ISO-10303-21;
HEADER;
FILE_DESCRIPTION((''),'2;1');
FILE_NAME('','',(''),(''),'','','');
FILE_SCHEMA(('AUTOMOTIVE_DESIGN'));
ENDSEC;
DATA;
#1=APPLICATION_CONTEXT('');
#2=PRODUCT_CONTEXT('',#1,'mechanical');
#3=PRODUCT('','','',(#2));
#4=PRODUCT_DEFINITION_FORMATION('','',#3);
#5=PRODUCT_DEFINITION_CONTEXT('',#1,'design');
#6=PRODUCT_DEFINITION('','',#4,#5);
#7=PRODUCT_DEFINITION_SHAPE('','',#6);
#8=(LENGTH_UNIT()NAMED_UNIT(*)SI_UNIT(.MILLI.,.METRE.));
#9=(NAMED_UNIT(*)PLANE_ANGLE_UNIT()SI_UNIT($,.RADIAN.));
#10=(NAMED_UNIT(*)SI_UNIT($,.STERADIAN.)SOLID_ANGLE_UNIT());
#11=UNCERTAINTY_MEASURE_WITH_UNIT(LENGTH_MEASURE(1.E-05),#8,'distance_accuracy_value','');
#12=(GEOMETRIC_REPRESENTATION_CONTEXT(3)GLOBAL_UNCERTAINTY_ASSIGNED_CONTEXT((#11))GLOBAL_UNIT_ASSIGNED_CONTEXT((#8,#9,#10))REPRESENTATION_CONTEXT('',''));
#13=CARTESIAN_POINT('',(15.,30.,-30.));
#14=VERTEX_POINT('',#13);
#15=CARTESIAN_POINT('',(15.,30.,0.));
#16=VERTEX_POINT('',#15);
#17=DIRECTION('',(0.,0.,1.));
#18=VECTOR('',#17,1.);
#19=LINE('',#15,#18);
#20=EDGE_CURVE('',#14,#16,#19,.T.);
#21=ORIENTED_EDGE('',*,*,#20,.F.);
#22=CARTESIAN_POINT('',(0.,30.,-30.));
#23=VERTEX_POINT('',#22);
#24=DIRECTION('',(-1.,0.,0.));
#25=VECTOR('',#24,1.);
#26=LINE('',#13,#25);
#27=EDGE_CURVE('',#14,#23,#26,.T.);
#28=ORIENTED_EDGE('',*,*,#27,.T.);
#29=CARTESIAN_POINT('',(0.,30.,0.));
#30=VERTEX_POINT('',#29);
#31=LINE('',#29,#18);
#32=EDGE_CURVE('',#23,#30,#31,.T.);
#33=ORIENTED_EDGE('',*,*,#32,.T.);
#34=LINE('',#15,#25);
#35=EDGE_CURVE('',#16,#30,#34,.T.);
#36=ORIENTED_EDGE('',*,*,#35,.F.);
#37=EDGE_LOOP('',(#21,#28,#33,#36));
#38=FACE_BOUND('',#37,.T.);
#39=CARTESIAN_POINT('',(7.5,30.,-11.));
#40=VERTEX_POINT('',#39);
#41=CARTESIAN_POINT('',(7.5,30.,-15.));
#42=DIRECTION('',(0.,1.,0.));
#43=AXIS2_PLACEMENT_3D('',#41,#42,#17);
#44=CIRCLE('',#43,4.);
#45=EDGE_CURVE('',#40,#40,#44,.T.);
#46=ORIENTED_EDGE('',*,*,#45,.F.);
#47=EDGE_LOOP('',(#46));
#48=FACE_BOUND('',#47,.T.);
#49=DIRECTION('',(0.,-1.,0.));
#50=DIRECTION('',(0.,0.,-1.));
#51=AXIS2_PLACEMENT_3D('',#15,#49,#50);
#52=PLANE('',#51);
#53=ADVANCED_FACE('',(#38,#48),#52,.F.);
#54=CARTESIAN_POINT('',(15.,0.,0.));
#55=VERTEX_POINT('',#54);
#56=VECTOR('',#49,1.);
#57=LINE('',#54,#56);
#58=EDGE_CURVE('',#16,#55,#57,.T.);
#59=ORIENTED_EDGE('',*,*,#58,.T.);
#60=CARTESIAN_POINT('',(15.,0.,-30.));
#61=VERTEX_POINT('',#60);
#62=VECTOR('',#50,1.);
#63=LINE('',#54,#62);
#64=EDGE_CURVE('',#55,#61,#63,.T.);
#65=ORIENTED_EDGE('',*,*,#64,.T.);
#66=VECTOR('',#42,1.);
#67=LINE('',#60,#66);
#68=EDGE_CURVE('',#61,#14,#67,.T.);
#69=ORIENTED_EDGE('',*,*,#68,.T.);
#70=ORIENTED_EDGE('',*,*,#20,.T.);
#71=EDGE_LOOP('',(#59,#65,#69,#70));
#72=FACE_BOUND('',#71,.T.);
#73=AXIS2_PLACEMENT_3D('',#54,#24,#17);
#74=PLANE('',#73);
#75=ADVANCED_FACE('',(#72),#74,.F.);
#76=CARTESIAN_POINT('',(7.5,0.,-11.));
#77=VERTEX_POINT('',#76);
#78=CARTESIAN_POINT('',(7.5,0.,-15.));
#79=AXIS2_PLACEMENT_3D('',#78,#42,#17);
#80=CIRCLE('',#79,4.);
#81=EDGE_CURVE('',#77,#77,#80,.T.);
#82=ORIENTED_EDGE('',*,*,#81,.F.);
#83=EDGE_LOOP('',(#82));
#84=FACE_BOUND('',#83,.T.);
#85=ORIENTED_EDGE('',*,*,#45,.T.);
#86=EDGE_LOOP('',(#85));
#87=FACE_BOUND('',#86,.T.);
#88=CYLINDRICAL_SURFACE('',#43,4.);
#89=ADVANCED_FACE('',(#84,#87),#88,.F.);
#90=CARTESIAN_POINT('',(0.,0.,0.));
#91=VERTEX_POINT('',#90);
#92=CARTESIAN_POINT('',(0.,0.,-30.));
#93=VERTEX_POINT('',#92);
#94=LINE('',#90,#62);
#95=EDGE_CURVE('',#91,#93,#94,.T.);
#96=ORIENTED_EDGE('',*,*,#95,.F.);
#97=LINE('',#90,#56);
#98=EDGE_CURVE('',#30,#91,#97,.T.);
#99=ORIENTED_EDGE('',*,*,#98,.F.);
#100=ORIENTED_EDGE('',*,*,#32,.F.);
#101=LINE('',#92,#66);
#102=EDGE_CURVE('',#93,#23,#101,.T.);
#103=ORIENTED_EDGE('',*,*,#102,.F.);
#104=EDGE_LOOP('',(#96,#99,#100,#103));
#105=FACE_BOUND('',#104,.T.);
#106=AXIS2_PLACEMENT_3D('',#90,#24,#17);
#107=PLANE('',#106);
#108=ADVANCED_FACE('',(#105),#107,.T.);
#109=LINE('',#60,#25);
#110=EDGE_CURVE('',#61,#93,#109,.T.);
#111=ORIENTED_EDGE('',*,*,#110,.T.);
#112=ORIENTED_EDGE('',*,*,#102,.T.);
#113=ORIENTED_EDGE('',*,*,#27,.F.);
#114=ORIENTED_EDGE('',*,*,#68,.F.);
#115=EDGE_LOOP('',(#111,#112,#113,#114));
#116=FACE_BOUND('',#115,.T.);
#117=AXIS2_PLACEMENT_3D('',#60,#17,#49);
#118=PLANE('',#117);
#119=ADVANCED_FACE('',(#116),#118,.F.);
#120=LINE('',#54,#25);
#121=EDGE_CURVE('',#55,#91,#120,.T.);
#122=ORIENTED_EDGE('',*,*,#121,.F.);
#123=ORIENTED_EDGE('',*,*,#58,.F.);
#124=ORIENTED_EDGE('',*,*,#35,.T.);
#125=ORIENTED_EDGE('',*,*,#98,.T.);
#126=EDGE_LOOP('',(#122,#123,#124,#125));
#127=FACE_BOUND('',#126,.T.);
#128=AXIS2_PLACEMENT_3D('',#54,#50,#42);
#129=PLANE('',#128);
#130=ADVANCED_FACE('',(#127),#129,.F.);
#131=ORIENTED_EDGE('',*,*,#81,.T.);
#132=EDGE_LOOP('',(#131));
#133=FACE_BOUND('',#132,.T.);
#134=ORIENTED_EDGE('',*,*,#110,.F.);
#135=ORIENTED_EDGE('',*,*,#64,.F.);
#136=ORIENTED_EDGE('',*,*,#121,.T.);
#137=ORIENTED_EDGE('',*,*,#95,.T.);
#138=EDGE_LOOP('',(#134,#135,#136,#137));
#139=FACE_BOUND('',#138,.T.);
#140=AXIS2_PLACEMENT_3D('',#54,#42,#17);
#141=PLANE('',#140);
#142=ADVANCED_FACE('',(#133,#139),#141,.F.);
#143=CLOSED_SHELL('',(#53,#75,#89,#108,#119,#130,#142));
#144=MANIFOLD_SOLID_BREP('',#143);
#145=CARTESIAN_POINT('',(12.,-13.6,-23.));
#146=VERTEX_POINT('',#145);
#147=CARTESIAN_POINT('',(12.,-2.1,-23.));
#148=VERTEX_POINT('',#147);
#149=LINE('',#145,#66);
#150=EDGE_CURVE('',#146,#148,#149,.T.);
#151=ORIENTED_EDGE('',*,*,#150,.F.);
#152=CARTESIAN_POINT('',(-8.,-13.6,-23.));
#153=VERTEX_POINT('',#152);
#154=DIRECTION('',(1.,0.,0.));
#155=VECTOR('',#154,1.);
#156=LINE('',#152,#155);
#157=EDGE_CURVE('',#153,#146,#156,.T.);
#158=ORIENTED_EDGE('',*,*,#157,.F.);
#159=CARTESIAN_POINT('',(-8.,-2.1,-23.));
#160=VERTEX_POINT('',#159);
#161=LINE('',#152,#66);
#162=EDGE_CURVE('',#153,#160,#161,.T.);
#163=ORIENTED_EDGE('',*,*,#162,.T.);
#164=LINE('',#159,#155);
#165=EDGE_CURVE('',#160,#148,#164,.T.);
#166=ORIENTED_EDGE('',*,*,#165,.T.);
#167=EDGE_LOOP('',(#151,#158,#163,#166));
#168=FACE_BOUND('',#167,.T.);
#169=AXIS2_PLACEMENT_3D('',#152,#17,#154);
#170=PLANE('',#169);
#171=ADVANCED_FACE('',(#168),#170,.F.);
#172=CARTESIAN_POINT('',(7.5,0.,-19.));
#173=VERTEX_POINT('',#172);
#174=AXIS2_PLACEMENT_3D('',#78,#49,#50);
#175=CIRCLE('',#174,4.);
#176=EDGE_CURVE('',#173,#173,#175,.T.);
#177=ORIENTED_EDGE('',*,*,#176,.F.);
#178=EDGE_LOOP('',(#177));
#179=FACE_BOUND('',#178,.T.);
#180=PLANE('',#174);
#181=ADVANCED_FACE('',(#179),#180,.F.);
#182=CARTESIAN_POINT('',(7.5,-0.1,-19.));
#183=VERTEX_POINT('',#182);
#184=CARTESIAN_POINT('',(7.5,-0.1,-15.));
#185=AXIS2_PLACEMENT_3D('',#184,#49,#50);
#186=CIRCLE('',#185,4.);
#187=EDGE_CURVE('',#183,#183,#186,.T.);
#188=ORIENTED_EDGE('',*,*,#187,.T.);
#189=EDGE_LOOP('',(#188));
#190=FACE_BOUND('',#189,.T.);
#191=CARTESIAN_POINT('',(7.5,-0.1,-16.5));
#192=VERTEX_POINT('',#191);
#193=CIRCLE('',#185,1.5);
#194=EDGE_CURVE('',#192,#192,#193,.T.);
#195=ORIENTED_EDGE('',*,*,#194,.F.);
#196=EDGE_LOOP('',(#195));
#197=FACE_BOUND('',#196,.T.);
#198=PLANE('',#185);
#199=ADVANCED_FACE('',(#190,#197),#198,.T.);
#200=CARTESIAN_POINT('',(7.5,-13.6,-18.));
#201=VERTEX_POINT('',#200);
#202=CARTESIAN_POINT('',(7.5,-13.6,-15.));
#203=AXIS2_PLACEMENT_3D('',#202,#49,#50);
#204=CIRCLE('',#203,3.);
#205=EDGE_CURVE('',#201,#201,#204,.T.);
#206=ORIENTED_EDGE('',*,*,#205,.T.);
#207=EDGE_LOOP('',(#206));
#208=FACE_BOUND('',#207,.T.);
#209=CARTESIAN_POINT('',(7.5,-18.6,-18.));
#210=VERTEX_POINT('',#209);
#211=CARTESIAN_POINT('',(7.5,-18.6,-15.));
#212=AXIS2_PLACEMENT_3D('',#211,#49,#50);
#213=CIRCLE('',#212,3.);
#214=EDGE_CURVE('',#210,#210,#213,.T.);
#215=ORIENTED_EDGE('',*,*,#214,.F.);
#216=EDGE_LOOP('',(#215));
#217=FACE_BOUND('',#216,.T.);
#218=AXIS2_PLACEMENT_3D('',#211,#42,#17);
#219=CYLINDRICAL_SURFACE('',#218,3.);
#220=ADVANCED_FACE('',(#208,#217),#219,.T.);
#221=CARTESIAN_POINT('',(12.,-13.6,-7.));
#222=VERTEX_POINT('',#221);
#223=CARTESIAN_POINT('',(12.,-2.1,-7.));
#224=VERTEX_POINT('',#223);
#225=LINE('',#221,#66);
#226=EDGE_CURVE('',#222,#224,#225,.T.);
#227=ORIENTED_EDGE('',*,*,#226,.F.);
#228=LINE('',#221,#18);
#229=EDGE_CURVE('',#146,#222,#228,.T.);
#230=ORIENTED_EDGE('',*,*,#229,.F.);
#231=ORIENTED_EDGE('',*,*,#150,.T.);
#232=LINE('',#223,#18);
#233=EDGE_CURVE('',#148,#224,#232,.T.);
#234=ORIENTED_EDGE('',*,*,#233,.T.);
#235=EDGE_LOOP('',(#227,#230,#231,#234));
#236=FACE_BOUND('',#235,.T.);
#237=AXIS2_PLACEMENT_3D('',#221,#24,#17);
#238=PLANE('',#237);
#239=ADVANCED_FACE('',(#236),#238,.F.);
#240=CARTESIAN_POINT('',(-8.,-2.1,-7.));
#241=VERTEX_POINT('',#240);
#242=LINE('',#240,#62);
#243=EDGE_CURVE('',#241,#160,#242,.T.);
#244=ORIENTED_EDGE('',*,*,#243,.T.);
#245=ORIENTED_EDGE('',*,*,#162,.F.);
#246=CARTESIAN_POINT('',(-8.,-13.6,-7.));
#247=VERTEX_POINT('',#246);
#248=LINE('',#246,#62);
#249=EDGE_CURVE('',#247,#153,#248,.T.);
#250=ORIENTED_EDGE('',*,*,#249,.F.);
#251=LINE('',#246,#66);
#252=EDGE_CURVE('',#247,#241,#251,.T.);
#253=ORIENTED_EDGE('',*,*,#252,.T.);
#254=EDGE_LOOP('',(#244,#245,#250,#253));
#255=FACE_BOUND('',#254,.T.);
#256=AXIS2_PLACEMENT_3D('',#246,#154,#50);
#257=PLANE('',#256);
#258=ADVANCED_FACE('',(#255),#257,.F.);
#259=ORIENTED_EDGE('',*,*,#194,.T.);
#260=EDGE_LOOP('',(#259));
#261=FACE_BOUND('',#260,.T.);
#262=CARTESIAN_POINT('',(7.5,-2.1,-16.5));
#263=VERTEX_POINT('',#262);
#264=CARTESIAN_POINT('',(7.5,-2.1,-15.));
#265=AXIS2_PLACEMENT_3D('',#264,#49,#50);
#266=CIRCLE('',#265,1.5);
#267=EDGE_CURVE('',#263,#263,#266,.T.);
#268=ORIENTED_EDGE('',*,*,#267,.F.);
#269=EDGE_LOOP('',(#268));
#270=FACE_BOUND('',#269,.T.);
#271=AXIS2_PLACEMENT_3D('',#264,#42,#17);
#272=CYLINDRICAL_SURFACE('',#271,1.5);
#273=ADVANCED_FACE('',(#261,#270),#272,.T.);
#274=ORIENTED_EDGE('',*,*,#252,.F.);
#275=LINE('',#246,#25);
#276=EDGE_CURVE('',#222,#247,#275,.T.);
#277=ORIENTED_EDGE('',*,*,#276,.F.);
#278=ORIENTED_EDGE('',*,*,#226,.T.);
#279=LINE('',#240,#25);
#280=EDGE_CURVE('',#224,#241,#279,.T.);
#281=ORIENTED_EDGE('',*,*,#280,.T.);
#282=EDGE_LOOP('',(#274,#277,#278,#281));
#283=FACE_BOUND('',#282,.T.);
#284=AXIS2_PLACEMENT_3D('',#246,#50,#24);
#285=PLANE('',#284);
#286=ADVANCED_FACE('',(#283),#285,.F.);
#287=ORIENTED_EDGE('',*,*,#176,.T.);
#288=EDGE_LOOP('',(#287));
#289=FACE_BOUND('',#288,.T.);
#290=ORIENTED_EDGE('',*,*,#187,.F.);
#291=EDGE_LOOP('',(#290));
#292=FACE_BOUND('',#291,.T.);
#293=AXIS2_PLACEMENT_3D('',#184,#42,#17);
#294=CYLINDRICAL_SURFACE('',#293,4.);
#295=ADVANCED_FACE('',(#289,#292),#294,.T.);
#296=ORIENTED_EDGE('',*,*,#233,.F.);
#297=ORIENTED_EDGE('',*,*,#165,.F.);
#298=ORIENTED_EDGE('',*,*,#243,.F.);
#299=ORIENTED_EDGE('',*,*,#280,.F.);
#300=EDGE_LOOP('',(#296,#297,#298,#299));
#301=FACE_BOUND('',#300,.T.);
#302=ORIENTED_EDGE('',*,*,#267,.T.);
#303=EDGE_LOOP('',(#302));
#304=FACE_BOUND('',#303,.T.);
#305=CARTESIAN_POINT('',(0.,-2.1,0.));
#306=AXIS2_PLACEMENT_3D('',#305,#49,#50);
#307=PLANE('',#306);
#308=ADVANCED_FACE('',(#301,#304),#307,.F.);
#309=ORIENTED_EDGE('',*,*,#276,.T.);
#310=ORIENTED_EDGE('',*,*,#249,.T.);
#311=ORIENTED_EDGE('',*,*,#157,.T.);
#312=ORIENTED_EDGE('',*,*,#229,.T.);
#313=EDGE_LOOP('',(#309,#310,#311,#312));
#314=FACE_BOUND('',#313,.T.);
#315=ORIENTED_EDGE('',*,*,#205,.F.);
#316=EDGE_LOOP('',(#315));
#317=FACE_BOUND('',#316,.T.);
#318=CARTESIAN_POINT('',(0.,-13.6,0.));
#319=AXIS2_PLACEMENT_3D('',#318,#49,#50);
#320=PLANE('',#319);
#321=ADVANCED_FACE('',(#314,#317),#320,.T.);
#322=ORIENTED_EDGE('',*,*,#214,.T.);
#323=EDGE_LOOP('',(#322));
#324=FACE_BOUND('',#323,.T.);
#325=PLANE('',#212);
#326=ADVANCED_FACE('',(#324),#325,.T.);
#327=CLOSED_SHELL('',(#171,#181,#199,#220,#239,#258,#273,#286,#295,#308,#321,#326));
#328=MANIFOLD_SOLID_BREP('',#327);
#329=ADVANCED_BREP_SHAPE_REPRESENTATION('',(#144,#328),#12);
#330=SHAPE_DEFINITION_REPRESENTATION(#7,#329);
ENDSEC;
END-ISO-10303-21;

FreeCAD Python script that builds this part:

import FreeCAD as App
import Part
import Sketcher

V = App.Vector
Q = App.Units.Quantity


def add_polygon(sketch, points):
    """Adds a closed chain of lines whose ends are joined by coincident constraints."""
    first, n = sketch.GeometryCount, len(points)
    for a, b in zip(points, points[1:] + points[:1]):
        sketch.addGeometry(Part.LineSegment(App.Vector(*a, 0), App.Vector(*b, 0)), False)
    for i in range(n):
        sketch.addConstraint(Sketcher.Constraint("Coincident", first + i, 2, first + (i + 1) % n, 1))

doc = App.newDocument("Part")
body = doc.addObject("PartDesign::Body", "Body")

# Sketch on YZ plane
sketch1 = body.newObject("Sketcher::SketchObject", "Sketch")
sketch1.AttachmentSupport = (doc.getObject("YZ_Plane"), [""])
sketch1.MapMode = "FlatFace"
add_polygon(sketch1, [(30, 0), (0, 0), (0, -30), (30, -30)])  # lines 0-3
sketch1.addConstraint([
    Sketcher.Constraint("Horizontal", 0),
    Sketcher.Constraint("Vertical", 1),
    Sketcher.Constraint("Horizontal", 2),
    Sketcher.Constraint("Vertical", 3),
    Sketcher.Constraint("Coincident", 0, 2, -1, 1),
    Sketcher.Constraint("Equal", 2, 1),
    Sketcher.Constraint("DistanceX", 0, 2, 0, 1, Q("30 mm")),
])
pad1 = body.newObject("PartDesign::Pad", "Pad")
pad1.Profile = sketch1
pad1.Length = 15

# Sketch on XZ plane
sketch2 = body.newObject("Sketcher::SketchObject", "Sketch001")
sketch2.AttachmentSupport = (doc.getObject("XZ_Plane"), [""])
sketch2.MapMode = "FlatFace"
sketch2.AttachmentOffset = App.Placement(V(0, 0, -30), App.Rotation())
sketch2.addGeometry(Part.Circle(V(7.5, -15, 0), V(0, 0, 1), 4), False)
sketch2.addConstraint([
    Sketcher.Constraint("Diameter", 0, Q("8 mm")),
    Sketcher.Constraint("DistanceY", 0, 3, -1, 1, Q("15 mm")),
    Sketcher.Constraint("DistanceX", -1, 1, 0, 3, Q("7.5 mm")),
])
doc.recompute()
hole = body.newObject("PartDesign::Hole", "Hole")
hole.Profile = sketch2
hole.ThreadType = "None"
hole.Diameter = 8
hole.DepthType = "ThroughAll"
hole.Reversed = True
body2 = doc.addObject("PartDesign::Body", "Body001")

# Sketch on XZ plane
sketch3 = body2.newObject("Sketcher::SketchObject", "Sketch002")
sketch3.AttachmentSupport = (doc.getObject("XZ_Plane001"), [""])
sketch3.MapMode = "FlatFace"
sketch3.addGeometry(Part.Circle(V(7.5, -15, 0), V(0, 0, 1), 4), False)
sketch3.addConstraint([
    Sketcher.Constraint("Diameter", 0, Q("8 mm")),
    Sketcher.Constraint("DistanceY", 0, 3, -1, 1, Q("15 mm")),
    Sketcher.Constraint("DistanceX", -1, 1, 0, 3, Q("7.5 mm")),
])
pad2 = body2.newObject("PartDesign::Pad", "Pad001")
pad2.Profile = sketch3
pad2.Length = 0.1

# Sketch on XZ plane
sketch4 = body2.newObject("Sketcher::SketchObject", "Sketch003")
sketch4.AttachmentSupport = (doc.getObject("XZ_Plane001"), [""])
sketch4.MapMode = "FlatFace"
sketch4.AttachmentOffset = App.Placement(V(0, 0, 0.1), App.Rotation())
sketch4.addGeometry(Part.Circle(V(7.5, -15, 0), V(0, 0, 1), 1.5), False)
sketch4.addConstraint([
    Sketcher.Constraint("Diameter", 0, Q("3 mm")),
    Sketcher.Constraint("DistanceY", 0, 3, -1, 1, Q("15 mm")),
    Sketcher.Constraint("DistanceX", -1, 1, 0, 3, Q("7.5 mm")),
])
pad3 = body2.newObject("PartDesign::Pad", "Pad002")
pad3.Profile = sketch4
pad3.Length = 2

# Sketch on XZ plane
sketch5 = body2.newObject("Sketcher::SketchObject", "Sketch004")
sketch5.AttachmentSupport = (doc.getObject("XZ_Plane001"), [""])
sketch5.MapMode = "FlatFace"
sketch5.AttachmentOffset = App.Placement(V(0, 0, 2.1), App.Rotation())
add_polygon(sketch5, [(-8, -7), (-8, -23), (12, -23), (12, -7)])  # lines 0-3
sketch5.addConstraint([
    Sketcher.Constraint("Vertical", 0),
    Sketcher.Constraint("Horizontal", 1),
    Sketcher.Constraint("Vertical", 2),
    Sketcher.Constraint("Horizontal", 3),
    Sketcher.Constraint("DistanceX", 1, 1, 1, 2, Q("20 mm")),
    Sketcher.Constraint("DistanceY", 0, 2, 0, 1, Q("16 mm")),
    Sketcher.Constraint("DistanceX", 0, 2, -1, 1, Q("8 mm")),
    Sketcher.Constraint("DistanceY", 0, 2, -1, 1, Q("23 mm")),
])
pad4 = body2.newObject("PartDesign::Pad", "Pad003")
pad4.Profile = sketch5
pad4.Length = 11.5

# Sketch on XZ plane
sketch6 = body2.newObject("Sketcher::SketchObject", "Sketch005")
sketch6.AttachmentSupport = (doc.getObject("XZ_Plane001"), [""])
sketch6.MapMode = "FlatFace"
sketch6.AttachmentOffset = App.Placement(V(0, 0, 13.6), App.Rotation())
sketch6.addGeometry(Part.Circle(V(7.5, -15, 0), V(0, 0, 1), 3), False)
sketch6.addConstraint([
    Sketcher.Constraint("Diameter", 0, Q("6 mm")),
    Sketcher.Constraint("DistanceY", 0, 3, -1, 1, Q("15 mm")),
    Sketcher.Constraint("DistanceX", -1, 1, 0, 3, Q("7.5 mm")),
])
pad5 = body2.newObject("PartDesign::Pad", "Pad004")
pad5.Profile = sketch6
pad5.Length = 5

doc.recompute()
